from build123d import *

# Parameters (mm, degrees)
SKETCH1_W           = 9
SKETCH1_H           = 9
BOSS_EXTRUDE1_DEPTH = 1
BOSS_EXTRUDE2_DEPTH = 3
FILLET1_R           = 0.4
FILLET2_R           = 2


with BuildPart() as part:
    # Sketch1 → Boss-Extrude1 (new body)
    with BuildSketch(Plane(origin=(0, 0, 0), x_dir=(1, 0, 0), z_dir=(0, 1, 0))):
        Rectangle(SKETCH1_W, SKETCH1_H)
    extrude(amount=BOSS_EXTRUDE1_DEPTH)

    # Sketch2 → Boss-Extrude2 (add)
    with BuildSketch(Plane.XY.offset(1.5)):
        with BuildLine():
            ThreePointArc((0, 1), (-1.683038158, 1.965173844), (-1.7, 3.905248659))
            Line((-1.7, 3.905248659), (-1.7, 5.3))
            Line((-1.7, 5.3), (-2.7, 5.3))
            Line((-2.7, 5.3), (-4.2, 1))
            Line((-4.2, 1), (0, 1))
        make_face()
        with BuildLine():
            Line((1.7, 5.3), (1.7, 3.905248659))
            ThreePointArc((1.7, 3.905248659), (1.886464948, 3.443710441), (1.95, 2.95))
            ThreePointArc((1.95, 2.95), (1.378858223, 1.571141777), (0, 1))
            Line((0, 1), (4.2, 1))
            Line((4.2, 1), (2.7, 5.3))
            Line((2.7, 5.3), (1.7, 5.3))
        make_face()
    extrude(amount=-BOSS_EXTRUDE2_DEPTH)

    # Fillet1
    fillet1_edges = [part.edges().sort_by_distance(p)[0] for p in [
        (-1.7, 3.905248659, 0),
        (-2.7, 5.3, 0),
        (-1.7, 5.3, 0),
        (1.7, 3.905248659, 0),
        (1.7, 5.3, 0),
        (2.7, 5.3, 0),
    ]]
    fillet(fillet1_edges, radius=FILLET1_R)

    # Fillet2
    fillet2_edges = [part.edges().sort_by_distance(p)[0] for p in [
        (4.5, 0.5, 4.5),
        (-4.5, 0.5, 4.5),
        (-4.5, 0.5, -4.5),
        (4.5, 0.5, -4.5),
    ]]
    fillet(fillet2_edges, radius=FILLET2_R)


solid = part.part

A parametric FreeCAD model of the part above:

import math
import FreeCAD as App
import Part
import Sketcher


def edges_at(feature, points):
    """Names of the edges that pass closest to the given points."""
    edges = feature.Shape.Edges
    near = lambda p: min(range(len(edges)), key=lambda i: edges[i].distToShape(Part.Vertex(*p))[0])
    return sorted({f"Edge{near(p) + 1}" for p in points})

doc = App.newDocument("Part")
body = doc.addObject("PartDesign::Body", "Body")

# Sketch on XZ plane
sketch1 = body.newObject("Sketcher::SketchObject", "Sketch")
sketch1.AttachmentSupport = (doc.getObject("XZ_Plane"), [""])
sketch1.MapMode = "FlatFace"
sketch1.addGeometry(Part.LineSegment(App.Vector(-4.5, -4.5, 0), App.Vector(-4.5, 4.5, 0)), False)
sketch1.addGeometry(Part.LineSegment(App.Vector(-4.5, 4.5, 0), App.Vector(4.5, 4.5, 0)), False)
sketch1.addGeometry(Part.LineSegment(App.Vector(4.5, 4.5, 0), App.Vector(4.5, -4.5, 0)), False)
sketch1.addGeometry(Part.LineSegment(App.Vector(4.5, -4.5, 0), App.Vector(-4.5, -4.5, 0)), False)
sketch1.addConstraint(Sketcher.Constraint("Coincident", 0, 2, 1, 1))
sketch1.addConstraint(Sketcher.Constraint("Coincident", 1, 2, 2, 1))
sketch1.addConstraint(Sketcher.Constraint("Coincident", 2, 2, 3, 1))
sketch1.addConstraint(Sketcher.Constraint("Coincident", 3, 2, 0, 1))
sketch1.addConstraint(Sketcher.Constraint("Vertical", 0))
sketch1.addConstraint(Sketcher.Constraint("Horizontal", 1))
sketch1.addConstraint(Sketcher.Constraint("Vertical", 2))
sketch1.addConstraint(Sketcher.Constraint("Horizontal", 3))
sketch1.addConstraint(Sketcher.Constraint("Symmetric", 0, 2, 2, 2, -1, 1))
sketch1.addConstraint(Sketcher.Constraint("Equal", 3, 0))
sketch1.addConstraint(Sketcher.Constraint("DistanceX", 1, 1, 1, 2, 9.0))
pad1 = body.newObject("PartDesign::Pad", "Pad")
pad1.Profile = sketch1
pad1.Length = 1
pad1.Reversed = True

# Sketch on XY plane
sketch2 = body.newObject("Sketcher::SketchObject", "Sketch001")
sketch2.AttachmentSupport = (doc.getObject("XY_Plane"), [""])
sketch2.MapMode = "FlatFace"
sketch2.AttachmentOffset = App.Placement(App.Vector(0, 0, 1.5), App.Rotation())
sketch2.addGeometry(Part.ArcOfCircle(Part.Circle(App.Vector(0, 2.95, 0), App.Vector(0, 0, 1), 1.95), math.radians(150.66789), math.radians(270)), False)
sketch2.addGeometry(Part.LineSegment(App.Vector(-1.7, 3.905249, 0), App.Vector(-1.7, 5.3, 0)), False)
sketch2.addGeometry(Part.LineSegment(App.Vector(-1.7, 5.3, 0), App.Vector(-2.7, 5.3, 0)), False)
sketch2.addGeometry(Part.LineSegment(App.Vector(-2.7, 5.3, 0), App.Vector(-4.2, 1, 0)), False)
sketch2.addGeometry(Part.LineSegment(App.Vector(-4.2, 1, 0), App.Vector(0, 1, 0)), False)
sketch2.addGeometry(Part.LineSegment(App.Vector(1.7, 5.3, 0), App.Vector(1.7, 3.905249, 0)), False)
sketch2.addGeometry(Part.ArcOfCircle(Part.Circle(App.Vector(0, 2.95, 0), App.Vector(0, 0, 1), 1.95), math.radians(0), math.radians(29.33211)), False)
sketch2.addGeometry(Part.ArcOfCircle(Part.Circle(App.Vector(0, 2.95, 0), App.Vector(0, 0, 1), 1.95), math.radians(-90), math.radians(0)), False)
sketch2.addGeometry(Part.LineSegment(App.Vector(0, 1, 0), App.Vector(4.2, 1, 0)), False)
sketch2.addGeometry(Part.LineSegment(App.Vector(4.2, 1, 0), App.Vector(2.7, 5.3, 0)), False)
sketch2.addGeometry(Part.LineSegment(App.Vector(2.7, 5.3, 0), App.Vector(1.7, 5.3, 0)), False)
sketch2.addConstraint(Sketcher.Constraint("Coincident", 0, 1, 1, 1))
sketch2.addConstraint(Sketcher.Constraint("Coincident", 1, 2, 2, 1))
sketch2.addConstraint(Sketcher.Constraint("Coincident", 2, 2, 3, 1))
sketch2.addConstraint(Sketcher.Constraint("Coincident", 3, 2, 4, 1))
sketch2.addConstraint(Sketcher.Constraint("Tangent", 4, 2, 0, 2))
sketch2.addConstraint(Sketcher.Constraint("Coincident", 5, 2, 6, 2))
sketch2.addConstraint(Sketcher.Constraint("Tangent", 6, 1, 7, 2))
sketch2.addConstraint(Sketcher.Constraint("Tangent", 7, 1, 8, 1))
sketch2.addConstraint(Sketcher.Constraint("Coincident", 8, 2, 9, 1))
sketch2.addConstraint(Sketcher.Constraint("Coincident", 9, 2, 10, 1))
sketch2.addConstraint(Sketcher.Constraint("Coincident", 10, 2, 5, 1))
sketch2.addConstraint(Sketcher.Constraint("Vertical", 1))
sketch2.addConstraint(Sketcher.Constraint("Horizontal", 2))
sketch2.addConstraint(Sketcher.Constraint("Horizontal", 4))
sketch2.addConstraint(Sketcher.Constraint("Vertical", 5))
sketch2.addConstraint(Sketcher.Constraint("Horizontal", 8))
sketch2.addConstraint(Sketcher.Constraint("Horizontal", 10))
sketch2.addConstraint(Sketcher.Constraint("Coincident", 6, 3, 0, 3))
sketch2.addConstraint(Sketcher.Constraint("Coincident", 7, 1, 4, 2))
sketch2.addConstraint(Sketcher.Constraint("Symmetric", 0, 1, 5, 2, -2))
sketch2.addConstraint(Sketcher.Constraint("Symmetric", 2, 2, 9, 2, -2))
sketch2.addConstraint(Sketcher.Constraint("Horizontal", 7, 3, 6, 1))
sketch2.addConstraint(Sketcher.Constraint("Equal", 4, 8))
sketch2.addConstraint(Sketcher.Constraint("DistanceX", 2, 2, 2, 1, 1.0))
sketch2.addConstraint(Sketcher.Constraint("Radius", 0, 1.95))
sketch2.addConstraint(Sketcher.Constraint("DistanceX", 4, 1, 4, 2, 4.2))
sketch2.addConstraint(Sketcher.Constraint("DistanceY", -1, 1, 3, 2, 1.0))
sketch2.addConstraint(Sketcher.Constraint("DistanceX", 0, 1, -1, 1, 1.7))
sketch2.addConstraint(Sketcher.Constraint("DistanceY", -1, 1, 1, 2, 5.3))
pad2 = body.newObject("PartDesign::Pad", "Pad001")
pad2.Profile = sketch2
pad2.Length = 3
pad2.Reversed = True
doc.recompute()

fillet = body.newObject("PartDesign::Fillet", "Fillet")
fillet.Base = (pad2, edges_at(pad2, [
    (-1.7, 3.905, 0),
    (-2.7, 5.3, 0),
    (-1.7, 5.3, 0),
    (1.7, 3.905, 0),
    (1.7, 5.3, 0),
    (2.7, 5.3, 0),
]))
fillet.Radius = 0.4
doc.recompute()

fillet2 = body.newObject("PartDesign::Fillet", "Fillet001")
fillet2.Base = (fillet, edges_at(fillet, [
    (4.5, 0.5, 4.5),
    (-4.5, 0.5, 4.5),
    (-4.5, 0.5, -4.5),
    (4.5, 0.5, -4.5),
]))
fillet2.Radius = 2

doc.recompute()
